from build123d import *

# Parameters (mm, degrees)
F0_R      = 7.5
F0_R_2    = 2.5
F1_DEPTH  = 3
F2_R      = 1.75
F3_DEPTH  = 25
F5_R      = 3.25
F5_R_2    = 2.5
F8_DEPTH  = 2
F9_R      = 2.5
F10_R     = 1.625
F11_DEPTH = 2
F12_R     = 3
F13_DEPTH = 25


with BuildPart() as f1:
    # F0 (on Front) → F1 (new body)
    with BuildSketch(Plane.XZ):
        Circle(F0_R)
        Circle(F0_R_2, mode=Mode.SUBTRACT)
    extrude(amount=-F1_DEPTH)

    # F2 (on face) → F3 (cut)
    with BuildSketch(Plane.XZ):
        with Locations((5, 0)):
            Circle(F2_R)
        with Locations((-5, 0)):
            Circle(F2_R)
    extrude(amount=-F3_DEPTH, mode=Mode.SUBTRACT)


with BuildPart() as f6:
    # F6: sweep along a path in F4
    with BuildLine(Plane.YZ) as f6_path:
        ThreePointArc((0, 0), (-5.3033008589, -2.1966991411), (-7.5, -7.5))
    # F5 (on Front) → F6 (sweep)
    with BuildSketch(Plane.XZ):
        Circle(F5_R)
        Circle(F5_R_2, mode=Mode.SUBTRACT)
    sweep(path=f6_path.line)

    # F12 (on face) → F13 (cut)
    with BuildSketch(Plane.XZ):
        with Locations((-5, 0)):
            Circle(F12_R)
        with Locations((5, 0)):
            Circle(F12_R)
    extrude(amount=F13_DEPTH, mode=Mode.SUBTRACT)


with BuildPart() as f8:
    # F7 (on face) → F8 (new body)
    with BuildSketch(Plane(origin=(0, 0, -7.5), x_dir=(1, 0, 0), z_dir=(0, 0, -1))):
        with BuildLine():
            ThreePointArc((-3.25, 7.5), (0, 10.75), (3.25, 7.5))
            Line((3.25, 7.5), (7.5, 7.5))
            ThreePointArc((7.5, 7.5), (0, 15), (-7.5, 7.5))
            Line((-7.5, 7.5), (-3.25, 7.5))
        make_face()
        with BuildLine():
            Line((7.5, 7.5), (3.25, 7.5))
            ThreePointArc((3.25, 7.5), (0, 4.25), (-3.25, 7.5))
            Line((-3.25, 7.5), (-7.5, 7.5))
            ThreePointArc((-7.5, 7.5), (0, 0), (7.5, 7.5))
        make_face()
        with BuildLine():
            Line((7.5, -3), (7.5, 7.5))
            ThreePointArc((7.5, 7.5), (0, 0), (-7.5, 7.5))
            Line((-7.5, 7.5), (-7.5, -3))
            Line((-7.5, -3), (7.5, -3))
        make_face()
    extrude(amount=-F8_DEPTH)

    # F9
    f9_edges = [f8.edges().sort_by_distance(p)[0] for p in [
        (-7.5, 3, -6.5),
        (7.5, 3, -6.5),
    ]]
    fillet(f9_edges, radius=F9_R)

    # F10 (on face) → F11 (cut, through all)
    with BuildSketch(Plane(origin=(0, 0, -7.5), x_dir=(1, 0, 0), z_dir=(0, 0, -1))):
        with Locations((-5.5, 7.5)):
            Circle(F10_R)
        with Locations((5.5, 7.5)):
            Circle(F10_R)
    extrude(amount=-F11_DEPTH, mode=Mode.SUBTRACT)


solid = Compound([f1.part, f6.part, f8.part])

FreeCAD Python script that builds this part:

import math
import FreeCAD as App
import Part
import Sketcher
from FreeCAD import Vector


def edges_at(feature, points):
    """Names of the edges that pass closest to the given points."""
    edges = feature.Shape.Edges
    near = lambda p: min(range(len(edges)), key=lambda i: edges[i].distToShape(Part.Vertex(*p))[0])
    return sorted({f"Edge{near(p) + 1}" for p in points})

doc = App.newDocument("Part")
body = doc.addObject("PartDesign::Body", "Body")

# Sketch on XZ plane
sketch1 = body.newObject("Sketcher::SketchObject", "Sketch")
sketch1.AttachmentSupport = (doc.getObject("XZ_Plane"), [""])
sketch1.MapMode = "FlatFace"
sketch1.addGeometry(Part.Circle(Vector(0, 0, 0), Vector(0, 0, 1), 7.5), False)
sketch1.addGeometry(Part.Circle(Vector(0, 0, 0), Vector(0, 0, 1), 2.5), False)
sketch1.addConstraint(Sketcher.Constraint("Coincident", 0, 3, -1, 1))
sketch1.addConstraint(Sketcher.Constraint("Coincident", 1, 3, -1, 1))
sketch1.addConstraint(Sketcher.Constraint("Diameter", 0, 15.0))
sketch1.addConstraint(Sketcher.Constraint("Diameter", 1, 5.0))
pad1 = body.newObject("PartDesign::Pad", "Pad")
pad1.Profile = sketch1
pad1.Length = 3
pad1.Reversed = True

# Sketch on XZ plane
sketch2 = body.newObject("Sketcher::SketchObject", "Sketch001")
sketch2.AttachmentSupport = (doc.getObject("XZ_Plane"), [""])
sketch2.MapMode = "FlatFace"
sketch2.addGeometry(Part.Circle(Vector(5, 0, 0), Vector(0, 0, 1), 1.8), False)
sketch2.addGeometry(Part.Circle(Vector(-5, 0, 0), Vector(0, 0, 1), 1.8), False)
sketch2.addConstraint(Sketcher.Constraint("Equal", 0, 1))
sketch2.addConstraint(Sketcher.Constraint("Symmetric", 0, 3, 1, 3, -1, 1))
sketch2.addConstraint(Sketcher.Constraint("PointOnObject", 0, 3, -1))
sketch2.addConstraint(Sketcher.Constraint("Diameter", 0, 3.5))
sketch2.addConstraint(Sketcher.Constraint("DistanceX", -1, 1, 0, 3, 5.0))
pocket1 = body.newObject("PartDesign::Pocket", "Pocket")
pocket1.Profile = sketch2
pocket1.Length = 25
body2 = doc.addObject("PartDesign::Body", "Body001")

# Sketch on XZ plane
sketch3 = body2.newObject("Sketcher::SketchObject", "Sketch002")
sketch3.AttachmentSupport = (doc.getObject("XZ_Plane001"), [""])
sketch3.MapMode = "FlatFace"
sketch3.addGeometry(Part.Circle(Vector(0, 0, 0), Vector(0, 0, 1), 3.2), False)
sketch3.addGeometry(Part.Circle(Vector(0, 0, 0), Vector(0, 0, 1), 2.5), False)
sketch3.addConstraint(Sketcher.Constraint("Coincident", 0, 3, -1, 1))
sketch3.addConstraint(Sketcher.Constraint("Coincident", 1, 3, -1, 1))
sketch3.addConstraint(Sketcher.Constraint("Diameter", 1, 5.0))
sketch3.addConstraint(Sketcher.Constraint("Diameter", 0, 6.5))

# Sketch on YZ plane
sketch4 = body2.newObject("Sketcher::SketchObject", "Sketch003")
sketch4.AttachmentSupport = (doc.getObject("YZ_Plane001"), [""])
sketch4.MapMode = "FlatFace"
sketch4.addGeometry(Part.ArcOfCircle(Part.Circle(Vector(0, -8, 0), Vector(0, 0, 1), 8), math.radians(90), math.radians(180)), False)
sketch4.addConstraint(Sketcher.Constraint("Coincident", 0, 1, -1, 1))
sketch4.addConstraint(Sketcher.Constraint("PointOnObject", 0, 3, -2))
sketch4.addConstraint(Sketcher.Constraint("Radius", 0, 7.5))
sketch4.addConstraint(Sketcher.Constraint("DistanceY", 0, 2, -1, 1, 7.5))
doc.recompute()

additivepipe = body2.newObject("PartDesign::AdditivePipe", "AdditivePipe")
additivepipe.Profile = sketch3
additivepipe.Spine = (sketch4, ["Edge1"])

# Sketch on XZ plane
sketch5 = body2.newObject("Sketcher::SketchObject", "Sketch004")
sketch5.AttachmentSupport = (doc.getObject("XZ_Plane001"), [""])
sketch5.MapMode = "FlatFace"
sketch5.addGeometry(Part.Circle(Vector(-5, 0, 0), Vector(0, 0, 1), 3), False)
sketch5.addGeometry(Part.Circle(Vector(5, 0, 0), Vector(0, 0, 1), 3), False)
sketch5.addConstraint(Sketcher.Constraint("Equal", 0, 1))
sketch5.addConstraint(Sketcher.Constraint("Symmetric", 0, 3, 1, 3, -1, 1))
sketch5.addConstraint(Sketcher.Constraint("PointOnObject", 0, 3, -1))
sketch5.addConstraint(Sketcher.Constraint("Diameter", 0, 6.0))
sketch5.addConstraint(Sketcher.Constraint("DistanceX", 0, 3, -1, 1, 5.0))
pocket2 = body2.newObject("PartDesign::Pocket", "Pocket001")
pocket2.Profile = sketch5
pocket2.Length = 25
pocket2.Reversed = True
body3 = doc.addObject("PartDesign::Body", "Body002")

# Sketch on XY plane
sketch6 = body3.newObject("Sketcher::SketchObject", "Sketch005")
sketch6.AttachmentSupport = (doc.getObject("XY_Plane002"), [""])
sketch6.MapMode = "FlatFace"
sketch6.AttachmentOffset = App.Placement(Vector(0, 0, -7.5), App.Rotation())
sketch6.addGeometry(Part.ArcOfCircle(Part.Circle(Vector(0, -7.5, 0), Vector(0, 0, 1), 7.5), math.radians(180), math.radians(360)), False)
sketch6.addGeometry(Part.LineSegment(Vector(-7.5, -7.5, 0), Vector(-7.5, 3, 0)), False)
sketch6.addGeometry(Part.LineSegment(Vector(-7.5, 3, 0), Vector(7.5, 3, 0)), False)
sketch6.addGeometry(Part.LineSegment(Vector(7.5, 3, 0), Vector(7.5, -7.5, 0)), False)
sketch6.addGeometry(Part.Circle(Vector(0, -7.5, 0), Vector(0, 0, 1), 3.2), False)
sketch6.addConstraint(Sketcher.Constraint("Tangent", 0, 1, 1, 1))
sketch6.addConstraint(Sketcher.Constraint("Coincident", 1, 2, 2, 1))
sketch6.addConstraint(Sketcher.Constraint("Coincident", 2, 2, 3, 1))
sketch6.addConstraint(Sketcher.Constraint("Tangent", 3, 2, 0, 2))
sketch6.addConstraint(Sketcher.Constraint("Vertical", 1))
sketch6.addConstraint(Sketcher.Constraint("Horizontal", 2))
sketch6.addConstraint(Sketcher.Constraint("Vertical", 3))
sketch6.addConstraint(Sketcher.Constraint("Coincident", 4, 3, 0, 3))
sketch6.addConstraint(Sketcher.Constraint("PointOnObject", 0, 3, -2))
sketch6.addConstraint(Sketcher.Constraint("Diameter", 4, 6.5))
sketch6.addConstraint(Sketcher.Constraint("Radius", 0, 7.5))
sketch6.addConstraint(Sketcher.Constraint("DistanceY", 1, 1, 1, 2, 10.5))
sketch6.addConstraint(Sketcher.Constraint("DistanceY", -1, 1, 1, 2, 3.0))
pad2 = body3.newObject("PartDesign::Pad", "Pad001")
pad2.Profile = sketch6
pad2.Length = 2
doc.recompute()

fillet = body3.newObject("PartDesign::Fillet", "Fillet")
fillet.Base = (pad2, edges_at(pad2, [(-7.5, 3, -6.5), (7.5, 3, -6.5)]))
fillet.Radius = 2.5

# Sketch on XY plane
sketch7 = body3.newObject("Sketcher::SketchObject", "Sketch006")
sketch7.AttachmentSupport = (doc.getObject("XY_Plane002"), [""])
sketch7.MapMode = "FlatFace"
sketch7.AttachmentOffset = App.Placement(Vector(0, 0, -7.5), App.Rotation())
sketch7.addGeometry(Part.Circle(Vector(-5.5, -7.5, 0), Vector(0, 0, 1), 1.6), False)
sketch7.addGeometry(Part.Circle(Vector(5.5, -7.5, 0), Vector(0, 0, 1), 1.6), False)
sketch7.addConstraint(Sketcher.Constraint("Equal", 0, 1))
sketch7.addConstraint(Sketcher.Constraint("Symmetric", 0, 3, 1, 3, -2))
sketch7.addConstraint(Sketcher.Constraint("Diameter", 0, 3.25))
sketch7.addConstraint(Sketcher.Constraint("DistanceX", 0, 3, 1, 3, 11.0))
sketch7.addConstraint(Sketcher.Constraint("DistanceY", 0, 3, -1, 1, 7.5))
pocket3 = body3.newObject("PartDesign::Pocket", "Pocket002")
pocket3.Profile = sketch7
pocket3.Type = "ThroughAll"
pocket3.Reversed = True

doc.recompute()
